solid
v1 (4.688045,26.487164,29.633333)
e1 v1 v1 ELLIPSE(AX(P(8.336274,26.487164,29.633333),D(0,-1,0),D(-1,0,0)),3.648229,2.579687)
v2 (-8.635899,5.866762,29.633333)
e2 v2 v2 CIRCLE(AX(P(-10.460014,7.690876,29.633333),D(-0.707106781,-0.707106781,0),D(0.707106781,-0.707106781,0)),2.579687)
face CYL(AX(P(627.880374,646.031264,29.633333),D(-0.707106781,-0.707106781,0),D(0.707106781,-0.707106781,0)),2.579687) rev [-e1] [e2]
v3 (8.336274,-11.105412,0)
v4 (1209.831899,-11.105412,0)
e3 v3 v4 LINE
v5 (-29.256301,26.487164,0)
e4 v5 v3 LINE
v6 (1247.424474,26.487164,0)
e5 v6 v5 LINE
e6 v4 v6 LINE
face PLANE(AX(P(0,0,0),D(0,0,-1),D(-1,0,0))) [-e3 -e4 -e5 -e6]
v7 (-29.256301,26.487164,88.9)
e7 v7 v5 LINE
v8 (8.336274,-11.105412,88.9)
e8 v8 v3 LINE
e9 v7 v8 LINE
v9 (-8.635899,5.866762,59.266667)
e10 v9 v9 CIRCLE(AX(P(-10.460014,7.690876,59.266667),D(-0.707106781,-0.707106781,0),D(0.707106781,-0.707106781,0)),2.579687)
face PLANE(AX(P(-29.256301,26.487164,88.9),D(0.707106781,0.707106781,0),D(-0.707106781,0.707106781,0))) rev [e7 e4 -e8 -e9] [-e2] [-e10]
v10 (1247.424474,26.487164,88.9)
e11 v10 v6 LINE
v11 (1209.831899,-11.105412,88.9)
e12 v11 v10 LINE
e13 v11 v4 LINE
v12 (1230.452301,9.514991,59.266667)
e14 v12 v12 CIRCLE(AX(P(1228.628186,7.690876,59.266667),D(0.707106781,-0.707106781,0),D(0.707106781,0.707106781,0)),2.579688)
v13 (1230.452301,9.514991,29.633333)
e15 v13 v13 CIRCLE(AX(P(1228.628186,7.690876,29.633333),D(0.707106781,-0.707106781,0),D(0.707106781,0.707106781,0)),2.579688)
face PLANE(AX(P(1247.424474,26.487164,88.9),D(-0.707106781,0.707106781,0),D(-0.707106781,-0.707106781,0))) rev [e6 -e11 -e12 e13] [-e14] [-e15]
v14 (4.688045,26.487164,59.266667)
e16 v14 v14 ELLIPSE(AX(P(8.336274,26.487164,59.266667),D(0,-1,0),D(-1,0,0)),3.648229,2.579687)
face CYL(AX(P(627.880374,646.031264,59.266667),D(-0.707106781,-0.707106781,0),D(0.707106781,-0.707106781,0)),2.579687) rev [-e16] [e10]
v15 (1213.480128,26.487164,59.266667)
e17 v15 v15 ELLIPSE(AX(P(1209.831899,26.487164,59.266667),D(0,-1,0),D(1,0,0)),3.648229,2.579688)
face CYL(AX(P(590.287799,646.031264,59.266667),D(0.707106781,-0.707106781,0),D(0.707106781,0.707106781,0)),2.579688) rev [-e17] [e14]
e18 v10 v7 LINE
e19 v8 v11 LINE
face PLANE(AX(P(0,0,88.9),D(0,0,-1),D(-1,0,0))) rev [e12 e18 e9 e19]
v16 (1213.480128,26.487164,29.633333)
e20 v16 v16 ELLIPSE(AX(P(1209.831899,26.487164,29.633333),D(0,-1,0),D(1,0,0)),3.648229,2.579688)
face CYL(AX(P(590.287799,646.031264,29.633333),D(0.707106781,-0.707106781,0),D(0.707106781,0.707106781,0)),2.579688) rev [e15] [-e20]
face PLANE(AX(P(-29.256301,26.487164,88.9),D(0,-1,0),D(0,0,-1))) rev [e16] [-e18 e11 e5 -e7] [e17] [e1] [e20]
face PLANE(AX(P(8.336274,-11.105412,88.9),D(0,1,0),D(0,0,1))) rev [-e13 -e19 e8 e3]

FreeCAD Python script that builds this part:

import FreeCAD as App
import Part
import Sketcher

V = App.Vector
Q = App.Units.Quantity


def add_polygon(sketch, points):
    """Adds a closed chain of lines whose ends are joined by coincident constraints."""
    first, n = sketch.GeometryCount, len(points)
    for a, b in zip(points, points[1:] + points[:1]):
        sketch.addGeometry(Part.LineSegment(App.Vector(*a, 0), App.Vector(*b, 0)), False)
    for i in range(n):
        sketch.addConstraint(Sketcher.Constraint("Coincident", first + i, 2, first + (i + 1) % n, 1))

doc = App.newDocument("Part")
body = doc.addObject("PartDesign::Body", "Body")

# Sketch on XY plane
sketch1 = doc.addObject("Sketcher::SketchObject", "Sketch")
body.addObject(sketch1)
sketch1.AttachmentSupport = (doc.XY_Plane, [""])
sketch1.MapMode = "FlatFace"
add_polygon(sketch1, [(1247, 26), (-29, 26), (8, -11), (1210, -11)])  # lines 0-3
sketch1.addConstraint([
    Sketcher.Constraint("Horizontal", 0),
    Sketcher.Constraint("Horizontal", 2),
    Sketcher.Constraint("Perpendicular", 1, 3),
    Sketcher.Constraint("Equal", 1, 3),
    Sketcher.Constraint("DistanceX", 0, 2, 2, 2, Q("48.783 in")),
    Sketcher.Constraint("DistanceX", 0, 2, -1, 1, Q("29.256301 mm")),
    Sketcher.Constraint("Distance", 1, Q("53.16393 mm")),
    Sketcher.Constraint("DistanceY", 1, 2, -1, 1, Q("11.105412 mm")),
])
pad1 = doc.addObject("PartDesign::Pad", "Pad")
body.addObject(pad1)
pad1.Profile = sketch1
pad1.Length = Q("3.5 in")

# Sketch on an angled plane
sketch2 = doc.addObject("Sketcher::SketchObject", "Sketch001")
body.addObject(sketch2)
sketch2.Placement = App.Placement(V(-1.384569, -1.384569, 0), App.Rotation(V(0, 0, 1), V(-0.707106781, 0.707106781, 0), V(-0.707106781, -0.707106781, 0), "ZXY"))
sketch2.addGeometry([
    Part.Circle(V(29.6, 12.8, 0), V(0, 0, 1), 2.6),
    Part.Circle(V(59.3, 12.8, 0), V(0, 0, 1), 2.6),
], False)
sketch2.addConstraint([
    Sketcher.Constraint("Equal", 0, 1),
    Sketcher.Constraint("Horizontal", 0, 3, 1, 3),
    Sketcher.Constraint("Diameter", 0, Q("0.203125 in")),
    Sketcher.Constraint("DistanceY", -1, 1, 0, 3, Q("0.5052999 in")),
    Sketcher.Constraint("DistanceX", -1, 1, 0, 3, Q("29.633333 mm")),
    Sketcher.Constraint("DistanceX", -1, 1, 1, 3, Q("59.266667 mm")),
])
pocket1 = doc.addObject("PartDesign::Pocket", "Pocket")
body.addObject(pocket1)
pocket1.Profile = sketch2
pocket1.Type = "ThroughAll"

# Sketch on an angled plane
sketch3 = doc.addObject("Sketcher::SketchObject", "Sketch002")
body.addObject(sketch3)
sketch3.Placement = App.Placement(V(610.468655, -610.468655, 0), App.Rotation(V(0, 0, -1), V(0.707106781, 0.707106781, 0), V(0.707106781, -0.707106781, 0), "ZXY"))
sketch3.addGeometry([
    Part.Circle(V(-59.3, 874.2, 0), V(0, 0, 1), 2.6),
    Part.Circle(V(-29.6, 874.2, 0), V(0, 0, 1), 2.6),
], False)
sketch3.addConstraint([
    Sketcher.Constraint("Equal", 0, 1),
    Sketcher.Constraint("Horizontal", 0, 3, 1, 3),
    Sketcher.Constraint("Diameter", 0, Q("0.203125 in")),
    Sketcher.Constraint("DistanceX", 0, 3, -1, 1, Q("59.266667 mm")),
    Sketcher.Constraint("DistanceY", -1, 1, 0, 3, Q("874.209592 mm")),
    Sketcher.Constraint("DistanceX", 1, 3, -1, 1, Q("29.633333 mm")),
])
pocket2 = doc.addObject("PartDesign::Pocket", "Pocket001")
body.addObject(pocket2)
pocket2.Profile = sketch3
pocket2.Type = "ThroughAll"

doc.recompute()
